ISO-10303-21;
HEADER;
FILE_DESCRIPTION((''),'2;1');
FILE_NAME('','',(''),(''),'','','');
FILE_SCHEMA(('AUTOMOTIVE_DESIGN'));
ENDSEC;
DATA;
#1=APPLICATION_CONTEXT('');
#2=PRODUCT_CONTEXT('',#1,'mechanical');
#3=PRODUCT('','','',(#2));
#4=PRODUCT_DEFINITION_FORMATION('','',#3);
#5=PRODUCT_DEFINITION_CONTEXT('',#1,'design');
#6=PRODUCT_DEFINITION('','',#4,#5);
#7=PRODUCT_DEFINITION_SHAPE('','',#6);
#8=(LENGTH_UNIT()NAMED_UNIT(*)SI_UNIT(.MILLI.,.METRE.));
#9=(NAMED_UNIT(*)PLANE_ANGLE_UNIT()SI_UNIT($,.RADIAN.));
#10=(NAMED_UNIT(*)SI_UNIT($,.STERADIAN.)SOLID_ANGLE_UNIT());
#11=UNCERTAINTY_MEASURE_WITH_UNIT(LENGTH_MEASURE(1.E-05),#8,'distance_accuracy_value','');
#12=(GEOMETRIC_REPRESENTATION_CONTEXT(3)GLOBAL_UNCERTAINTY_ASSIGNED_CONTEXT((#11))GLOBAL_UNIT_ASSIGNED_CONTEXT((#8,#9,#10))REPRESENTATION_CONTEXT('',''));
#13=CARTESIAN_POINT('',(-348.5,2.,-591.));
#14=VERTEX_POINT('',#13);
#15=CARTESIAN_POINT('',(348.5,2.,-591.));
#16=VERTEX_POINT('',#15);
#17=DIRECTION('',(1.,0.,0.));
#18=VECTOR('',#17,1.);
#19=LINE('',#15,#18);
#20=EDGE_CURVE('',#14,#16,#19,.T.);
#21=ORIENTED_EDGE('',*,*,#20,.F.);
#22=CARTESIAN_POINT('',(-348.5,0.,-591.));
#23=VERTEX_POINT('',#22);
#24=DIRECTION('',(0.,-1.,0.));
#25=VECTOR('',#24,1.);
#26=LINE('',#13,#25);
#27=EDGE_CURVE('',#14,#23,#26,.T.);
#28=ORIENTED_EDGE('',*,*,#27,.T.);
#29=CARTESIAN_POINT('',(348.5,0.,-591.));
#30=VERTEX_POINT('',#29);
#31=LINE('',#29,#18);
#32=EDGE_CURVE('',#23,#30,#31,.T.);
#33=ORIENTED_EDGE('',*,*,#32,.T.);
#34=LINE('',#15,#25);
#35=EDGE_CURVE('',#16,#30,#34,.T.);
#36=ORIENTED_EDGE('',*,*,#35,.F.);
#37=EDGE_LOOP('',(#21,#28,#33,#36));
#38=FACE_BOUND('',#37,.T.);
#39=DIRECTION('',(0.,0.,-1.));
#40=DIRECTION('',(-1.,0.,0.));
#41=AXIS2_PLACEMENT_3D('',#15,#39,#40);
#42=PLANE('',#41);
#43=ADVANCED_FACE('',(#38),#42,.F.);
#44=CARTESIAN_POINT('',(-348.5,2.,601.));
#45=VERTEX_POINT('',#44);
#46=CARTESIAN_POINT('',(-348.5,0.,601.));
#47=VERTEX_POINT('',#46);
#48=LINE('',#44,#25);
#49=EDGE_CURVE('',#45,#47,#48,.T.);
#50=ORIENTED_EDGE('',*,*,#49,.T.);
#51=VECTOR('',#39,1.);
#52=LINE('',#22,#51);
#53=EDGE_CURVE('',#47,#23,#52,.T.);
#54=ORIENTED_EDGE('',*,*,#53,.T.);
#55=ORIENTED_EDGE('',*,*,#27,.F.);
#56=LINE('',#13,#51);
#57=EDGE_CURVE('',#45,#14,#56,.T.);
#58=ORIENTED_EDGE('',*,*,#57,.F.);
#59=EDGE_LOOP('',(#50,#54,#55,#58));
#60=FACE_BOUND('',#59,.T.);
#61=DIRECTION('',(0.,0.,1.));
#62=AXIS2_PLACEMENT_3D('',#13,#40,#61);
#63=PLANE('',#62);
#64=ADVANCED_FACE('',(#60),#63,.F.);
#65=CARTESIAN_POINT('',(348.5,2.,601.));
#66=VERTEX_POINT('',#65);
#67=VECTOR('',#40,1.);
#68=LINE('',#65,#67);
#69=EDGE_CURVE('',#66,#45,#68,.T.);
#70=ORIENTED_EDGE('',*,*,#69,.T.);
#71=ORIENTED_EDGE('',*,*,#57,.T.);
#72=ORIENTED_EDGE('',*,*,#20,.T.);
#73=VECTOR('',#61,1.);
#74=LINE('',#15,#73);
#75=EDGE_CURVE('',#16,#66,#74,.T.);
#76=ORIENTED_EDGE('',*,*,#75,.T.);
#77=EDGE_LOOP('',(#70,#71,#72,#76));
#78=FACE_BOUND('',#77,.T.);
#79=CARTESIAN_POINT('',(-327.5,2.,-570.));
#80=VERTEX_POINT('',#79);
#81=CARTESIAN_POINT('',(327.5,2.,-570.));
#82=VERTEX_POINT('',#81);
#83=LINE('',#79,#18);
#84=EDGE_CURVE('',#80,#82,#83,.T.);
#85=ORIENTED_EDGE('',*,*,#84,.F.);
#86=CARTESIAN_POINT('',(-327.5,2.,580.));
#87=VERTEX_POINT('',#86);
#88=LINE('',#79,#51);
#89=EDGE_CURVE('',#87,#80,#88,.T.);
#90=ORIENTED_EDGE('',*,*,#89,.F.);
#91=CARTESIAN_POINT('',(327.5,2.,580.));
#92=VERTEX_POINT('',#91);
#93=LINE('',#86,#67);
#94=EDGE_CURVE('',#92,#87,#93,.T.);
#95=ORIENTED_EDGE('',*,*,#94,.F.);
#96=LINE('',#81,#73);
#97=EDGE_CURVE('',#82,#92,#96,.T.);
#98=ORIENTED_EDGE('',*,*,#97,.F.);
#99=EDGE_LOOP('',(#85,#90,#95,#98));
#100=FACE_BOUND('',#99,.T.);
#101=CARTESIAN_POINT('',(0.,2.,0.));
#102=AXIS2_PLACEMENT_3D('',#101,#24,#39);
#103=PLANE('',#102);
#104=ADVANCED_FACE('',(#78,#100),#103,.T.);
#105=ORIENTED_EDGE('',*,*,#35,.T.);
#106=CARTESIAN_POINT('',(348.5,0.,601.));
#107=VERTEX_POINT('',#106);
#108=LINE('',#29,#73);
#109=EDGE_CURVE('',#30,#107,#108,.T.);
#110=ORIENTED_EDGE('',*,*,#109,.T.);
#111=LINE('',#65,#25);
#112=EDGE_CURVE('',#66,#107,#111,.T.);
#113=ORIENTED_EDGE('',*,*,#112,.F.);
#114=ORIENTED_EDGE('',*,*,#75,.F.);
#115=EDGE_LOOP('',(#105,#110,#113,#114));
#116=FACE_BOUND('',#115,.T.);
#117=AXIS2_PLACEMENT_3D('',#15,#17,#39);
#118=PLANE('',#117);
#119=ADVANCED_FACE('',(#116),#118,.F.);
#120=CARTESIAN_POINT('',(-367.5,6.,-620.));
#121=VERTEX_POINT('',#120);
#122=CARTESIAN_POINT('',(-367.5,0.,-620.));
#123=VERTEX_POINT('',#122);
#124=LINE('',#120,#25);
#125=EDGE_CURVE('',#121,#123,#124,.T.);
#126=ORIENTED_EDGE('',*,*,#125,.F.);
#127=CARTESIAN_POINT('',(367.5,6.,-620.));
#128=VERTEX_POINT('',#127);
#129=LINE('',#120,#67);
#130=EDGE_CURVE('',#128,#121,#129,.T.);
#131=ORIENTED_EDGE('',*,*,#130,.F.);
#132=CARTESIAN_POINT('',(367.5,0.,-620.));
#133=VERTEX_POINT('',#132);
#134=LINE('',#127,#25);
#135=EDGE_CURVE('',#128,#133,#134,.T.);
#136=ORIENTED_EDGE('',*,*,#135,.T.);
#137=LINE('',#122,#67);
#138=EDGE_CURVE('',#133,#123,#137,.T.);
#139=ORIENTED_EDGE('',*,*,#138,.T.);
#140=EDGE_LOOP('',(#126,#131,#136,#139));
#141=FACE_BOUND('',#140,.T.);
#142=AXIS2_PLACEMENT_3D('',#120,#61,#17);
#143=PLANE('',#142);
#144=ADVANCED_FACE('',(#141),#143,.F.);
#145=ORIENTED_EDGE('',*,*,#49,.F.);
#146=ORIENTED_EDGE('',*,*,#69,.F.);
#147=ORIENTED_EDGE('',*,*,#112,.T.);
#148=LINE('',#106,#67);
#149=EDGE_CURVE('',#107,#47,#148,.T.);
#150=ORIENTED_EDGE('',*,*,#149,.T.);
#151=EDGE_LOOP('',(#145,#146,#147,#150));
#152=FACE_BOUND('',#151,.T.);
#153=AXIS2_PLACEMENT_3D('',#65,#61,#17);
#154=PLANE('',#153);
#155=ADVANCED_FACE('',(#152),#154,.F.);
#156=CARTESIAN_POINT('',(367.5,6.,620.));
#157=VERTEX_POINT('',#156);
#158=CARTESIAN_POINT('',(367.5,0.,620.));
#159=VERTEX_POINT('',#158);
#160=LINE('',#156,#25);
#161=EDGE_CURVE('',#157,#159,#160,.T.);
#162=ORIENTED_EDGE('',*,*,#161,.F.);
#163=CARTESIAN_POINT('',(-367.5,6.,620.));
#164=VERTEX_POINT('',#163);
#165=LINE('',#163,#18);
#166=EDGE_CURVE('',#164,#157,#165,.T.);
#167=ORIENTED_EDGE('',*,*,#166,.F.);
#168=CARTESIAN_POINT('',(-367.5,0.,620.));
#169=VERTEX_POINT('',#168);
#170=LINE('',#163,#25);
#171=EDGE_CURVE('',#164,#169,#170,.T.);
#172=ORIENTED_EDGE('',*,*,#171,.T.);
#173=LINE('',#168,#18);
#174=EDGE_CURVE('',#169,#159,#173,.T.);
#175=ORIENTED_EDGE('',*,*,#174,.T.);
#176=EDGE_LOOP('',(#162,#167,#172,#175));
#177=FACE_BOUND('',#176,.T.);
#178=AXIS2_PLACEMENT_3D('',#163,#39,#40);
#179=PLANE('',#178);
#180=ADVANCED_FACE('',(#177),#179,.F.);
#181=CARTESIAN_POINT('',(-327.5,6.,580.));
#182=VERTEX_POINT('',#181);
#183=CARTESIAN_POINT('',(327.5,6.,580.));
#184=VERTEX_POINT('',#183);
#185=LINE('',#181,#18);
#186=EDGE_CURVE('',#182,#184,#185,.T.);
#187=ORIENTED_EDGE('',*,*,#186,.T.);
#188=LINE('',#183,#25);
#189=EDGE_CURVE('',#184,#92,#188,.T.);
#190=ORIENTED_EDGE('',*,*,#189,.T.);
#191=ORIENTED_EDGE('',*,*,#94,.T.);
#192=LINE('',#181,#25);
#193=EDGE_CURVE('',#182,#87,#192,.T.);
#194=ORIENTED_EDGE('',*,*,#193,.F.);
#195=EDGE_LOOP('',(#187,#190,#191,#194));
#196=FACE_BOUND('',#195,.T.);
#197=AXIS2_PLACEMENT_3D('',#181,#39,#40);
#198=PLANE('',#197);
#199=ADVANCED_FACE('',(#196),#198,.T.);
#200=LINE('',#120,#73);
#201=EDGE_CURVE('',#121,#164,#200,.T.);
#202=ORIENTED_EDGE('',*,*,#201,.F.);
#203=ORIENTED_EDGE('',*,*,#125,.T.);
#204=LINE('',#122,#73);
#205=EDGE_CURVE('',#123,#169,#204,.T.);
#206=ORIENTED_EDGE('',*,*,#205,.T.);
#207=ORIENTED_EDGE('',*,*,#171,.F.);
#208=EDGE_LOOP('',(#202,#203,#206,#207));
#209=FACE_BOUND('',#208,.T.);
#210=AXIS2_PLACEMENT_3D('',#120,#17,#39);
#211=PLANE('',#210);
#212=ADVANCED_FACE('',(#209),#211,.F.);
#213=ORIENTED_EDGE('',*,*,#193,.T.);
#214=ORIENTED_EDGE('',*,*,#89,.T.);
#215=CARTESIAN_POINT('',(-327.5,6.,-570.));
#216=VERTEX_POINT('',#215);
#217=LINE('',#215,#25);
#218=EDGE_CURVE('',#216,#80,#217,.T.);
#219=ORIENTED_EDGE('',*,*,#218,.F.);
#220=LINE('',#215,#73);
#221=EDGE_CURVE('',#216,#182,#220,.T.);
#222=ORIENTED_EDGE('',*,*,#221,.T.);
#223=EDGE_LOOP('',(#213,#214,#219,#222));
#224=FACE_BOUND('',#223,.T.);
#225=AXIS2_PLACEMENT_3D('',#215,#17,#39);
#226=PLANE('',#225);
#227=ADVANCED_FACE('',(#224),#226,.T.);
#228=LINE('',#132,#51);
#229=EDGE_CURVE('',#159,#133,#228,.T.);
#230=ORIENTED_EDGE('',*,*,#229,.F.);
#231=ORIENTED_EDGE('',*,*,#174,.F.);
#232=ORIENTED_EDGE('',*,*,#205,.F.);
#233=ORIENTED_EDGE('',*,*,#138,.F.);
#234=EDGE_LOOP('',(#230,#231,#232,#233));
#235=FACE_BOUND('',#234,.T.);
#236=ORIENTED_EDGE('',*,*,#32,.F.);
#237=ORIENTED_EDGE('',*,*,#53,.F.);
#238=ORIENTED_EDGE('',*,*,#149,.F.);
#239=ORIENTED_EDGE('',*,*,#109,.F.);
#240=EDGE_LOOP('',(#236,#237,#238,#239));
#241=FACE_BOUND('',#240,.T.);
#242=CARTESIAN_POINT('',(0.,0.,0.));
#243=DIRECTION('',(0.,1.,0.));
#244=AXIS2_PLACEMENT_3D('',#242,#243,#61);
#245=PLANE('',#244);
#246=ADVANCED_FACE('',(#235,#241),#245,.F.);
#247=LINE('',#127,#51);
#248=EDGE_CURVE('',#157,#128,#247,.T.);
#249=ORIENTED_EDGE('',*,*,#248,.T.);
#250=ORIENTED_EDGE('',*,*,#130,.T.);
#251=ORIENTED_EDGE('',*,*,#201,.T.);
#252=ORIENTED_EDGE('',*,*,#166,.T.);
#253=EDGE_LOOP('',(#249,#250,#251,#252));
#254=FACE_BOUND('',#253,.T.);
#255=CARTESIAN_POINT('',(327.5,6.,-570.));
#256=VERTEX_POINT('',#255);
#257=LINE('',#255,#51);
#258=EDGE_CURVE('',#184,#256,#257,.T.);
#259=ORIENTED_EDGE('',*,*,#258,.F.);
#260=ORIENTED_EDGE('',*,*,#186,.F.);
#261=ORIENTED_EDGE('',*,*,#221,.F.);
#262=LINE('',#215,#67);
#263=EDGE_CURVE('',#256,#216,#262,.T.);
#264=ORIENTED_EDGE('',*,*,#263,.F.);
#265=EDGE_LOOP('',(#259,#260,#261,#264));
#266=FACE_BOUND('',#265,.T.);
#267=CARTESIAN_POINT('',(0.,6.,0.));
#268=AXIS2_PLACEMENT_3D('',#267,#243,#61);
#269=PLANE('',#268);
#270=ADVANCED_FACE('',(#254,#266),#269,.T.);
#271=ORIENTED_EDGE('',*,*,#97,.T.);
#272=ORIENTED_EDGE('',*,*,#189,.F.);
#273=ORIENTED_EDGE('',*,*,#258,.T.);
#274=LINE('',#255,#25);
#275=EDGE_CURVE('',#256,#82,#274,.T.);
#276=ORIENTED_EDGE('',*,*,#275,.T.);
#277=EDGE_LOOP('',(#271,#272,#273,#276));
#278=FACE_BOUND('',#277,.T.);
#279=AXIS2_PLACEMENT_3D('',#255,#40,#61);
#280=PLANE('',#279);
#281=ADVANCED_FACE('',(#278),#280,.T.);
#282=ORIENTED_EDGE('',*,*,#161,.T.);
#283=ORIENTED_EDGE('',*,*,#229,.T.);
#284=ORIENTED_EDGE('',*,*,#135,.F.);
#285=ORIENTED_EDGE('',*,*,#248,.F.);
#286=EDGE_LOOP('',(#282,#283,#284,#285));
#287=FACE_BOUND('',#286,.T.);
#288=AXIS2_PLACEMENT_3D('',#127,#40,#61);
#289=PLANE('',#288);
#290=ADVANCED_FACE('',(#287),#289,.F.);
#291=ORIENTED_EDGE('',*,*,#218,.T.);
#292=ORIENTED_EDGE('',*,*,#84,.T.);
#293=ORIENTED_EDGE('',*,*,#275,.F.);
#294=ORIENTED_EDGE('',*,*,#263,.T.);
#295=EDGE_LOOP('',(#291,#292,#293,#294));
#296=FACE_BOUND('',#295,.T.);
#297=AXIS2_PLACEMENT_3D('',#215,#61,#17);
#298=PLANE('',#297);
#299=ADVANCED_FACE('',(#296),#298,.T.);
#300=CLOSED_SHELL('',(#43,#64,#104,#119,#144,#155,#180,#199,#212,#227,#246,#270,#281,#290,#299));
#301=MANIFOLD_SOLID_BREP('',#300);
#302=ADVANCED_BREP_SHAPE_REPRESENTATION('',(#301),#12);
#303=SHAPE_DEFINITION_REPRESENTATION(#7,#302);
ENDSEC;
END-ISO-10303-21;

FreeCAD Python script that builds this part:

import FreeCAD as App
import Part
import Sketcher

V = App.Vector


def add_polygon(sketch, points):
    """Adds a closed chain of lines whose ends are joined by coincident constraints."""
    first, n = sketch.GeometryCount, len(points)
    for a, b in zip(points, points[1:] + points[:1]):
        sketch.addGeometry(Part.LineSegment(App.Vector(*a, 0), App.Vector(*b, 0)), False)
    for i in range(n):
        sketch.addConstraint(Sketcher.Constraint("Coincident", first + i, 2, first + (i + 1) % n, 1))

doc = App.newDocument("Part")
body = doc.addObject("PartDesign::Body", "Body")

# Sketch on XZ plane
sketch1 = body.newObject("Sketcher::SketchObject", "Sketch")
sketch1.AttachmentSupport = (doc.getObject("XZ_Plane"), [""])
sketch1.MapMode = "FlatFace"
add_polygon(sketch1, [(-367.5, -620), (-367.5, 620), (367.5, 620), (367.5, -620)])  # lines 0-3
add_polygon(sketch1, [(327.5, 580), (-327.5, 580), (-327.5, -570), (327.5, -570)])  # lines 4-7
sketch1.addConstraint(Sketcher.Constraint("Vertical", 0))
sketch1.addConstraint(Sketcher.Constraint("Horizontal", 1))
sketch1.addConstraint(Sketcher.Constraint("Vertical", 2))
sketch1.addConstraint(Sketcher.Constraint("Horizontal", 3))
sketch1.addConstraint(Sketcher.Constraint("Horizontal", 4))
sketch1.addConstraint(Sketcher.Constraint("Vertical", 5))
sketch1.addConstraint(Sketcher.Constraint("Horizontal", 6))
sketch1.addConstraint(Sketcher.Constraint("Vertical", 7))
sketch1.addConstraint(Sketcher.Constraint("Symmetric", 0, 2, 2, 2, -1, 1))
sketch1.addConstraint(Sketcher.Constraint("DistanceX", 1, 1, 1, 2, 735.0))
sketch1.addConstraint(Sketcher.Constraint("DistanceX", 4, 2, 4, 1, 655.0))
sketch1.addConstraint(Sketcher.Constraint("DistanceY", 0, 1, 0, 2, 1240.0))
sketch1.addConstraint(Sketcher.Constraint("DistanceY", 5, 2, 5, 1, 1150.0))
sketch1.addConstraint(Sketcher.Constraint("DistanceY", -1, 1, 4, 2, 580.0))
sketch1.addConstraint(Sketcher.Constraint("DistanceX", 0, 2, 4, 2, 40.0))
pad1 = body.newObject("PartDesign::Pad", "Pad")
pad1.Profile = sketch1
pad1.Length = 6
pad1.Reversed = True

# Sketch on XZ plane
sketch2 = body.newObject("Sketcher::SketchObject", "Sketch001")
sketch2.AttachmentSupport = (doc.getObject("XZ_Plane"), [""])
sketch2.MapMode = "FlatFace"
add_polygon(sketch2, [(-348.5, 601), (-348.5, -591), (348.5, -591), (348.5, 601)])  # lines 0-3
sketch2.addConstraint(Sketcher.Constraint("Vertical", 0))
sketch2.addConstraint(Sketcher.Constraint("Horizontal", 1))
sketch2.addConstraint(Sketcher.Constraint("Vertical", 2))
sketch2.addConstraint(Sketcher.Constraint("Horizontal", 3))
sketch2.addConstraint(Sketcher.Constraint("DistanceX", 1, 1, 1, 2, 697.0))
sketch2.addConstraint(Sketcher.Constraint("DistanceY", 0, 2, 0, 1, 1192.0))
sketch2.addConstraint(Sketcher.Constraint("DistanceY", 0, 2, -1, 1, 591.0))
sketch2.addConstraint(Sketcher.Constraint("DistanceX", 0, 2, -1, 1, 348.5))
pocket1 = body.newObject("PartDesign::Pocket", "Pocket")
pocket1.Profile = sketch2
pocket1.Length = 2

doc.recompute()
